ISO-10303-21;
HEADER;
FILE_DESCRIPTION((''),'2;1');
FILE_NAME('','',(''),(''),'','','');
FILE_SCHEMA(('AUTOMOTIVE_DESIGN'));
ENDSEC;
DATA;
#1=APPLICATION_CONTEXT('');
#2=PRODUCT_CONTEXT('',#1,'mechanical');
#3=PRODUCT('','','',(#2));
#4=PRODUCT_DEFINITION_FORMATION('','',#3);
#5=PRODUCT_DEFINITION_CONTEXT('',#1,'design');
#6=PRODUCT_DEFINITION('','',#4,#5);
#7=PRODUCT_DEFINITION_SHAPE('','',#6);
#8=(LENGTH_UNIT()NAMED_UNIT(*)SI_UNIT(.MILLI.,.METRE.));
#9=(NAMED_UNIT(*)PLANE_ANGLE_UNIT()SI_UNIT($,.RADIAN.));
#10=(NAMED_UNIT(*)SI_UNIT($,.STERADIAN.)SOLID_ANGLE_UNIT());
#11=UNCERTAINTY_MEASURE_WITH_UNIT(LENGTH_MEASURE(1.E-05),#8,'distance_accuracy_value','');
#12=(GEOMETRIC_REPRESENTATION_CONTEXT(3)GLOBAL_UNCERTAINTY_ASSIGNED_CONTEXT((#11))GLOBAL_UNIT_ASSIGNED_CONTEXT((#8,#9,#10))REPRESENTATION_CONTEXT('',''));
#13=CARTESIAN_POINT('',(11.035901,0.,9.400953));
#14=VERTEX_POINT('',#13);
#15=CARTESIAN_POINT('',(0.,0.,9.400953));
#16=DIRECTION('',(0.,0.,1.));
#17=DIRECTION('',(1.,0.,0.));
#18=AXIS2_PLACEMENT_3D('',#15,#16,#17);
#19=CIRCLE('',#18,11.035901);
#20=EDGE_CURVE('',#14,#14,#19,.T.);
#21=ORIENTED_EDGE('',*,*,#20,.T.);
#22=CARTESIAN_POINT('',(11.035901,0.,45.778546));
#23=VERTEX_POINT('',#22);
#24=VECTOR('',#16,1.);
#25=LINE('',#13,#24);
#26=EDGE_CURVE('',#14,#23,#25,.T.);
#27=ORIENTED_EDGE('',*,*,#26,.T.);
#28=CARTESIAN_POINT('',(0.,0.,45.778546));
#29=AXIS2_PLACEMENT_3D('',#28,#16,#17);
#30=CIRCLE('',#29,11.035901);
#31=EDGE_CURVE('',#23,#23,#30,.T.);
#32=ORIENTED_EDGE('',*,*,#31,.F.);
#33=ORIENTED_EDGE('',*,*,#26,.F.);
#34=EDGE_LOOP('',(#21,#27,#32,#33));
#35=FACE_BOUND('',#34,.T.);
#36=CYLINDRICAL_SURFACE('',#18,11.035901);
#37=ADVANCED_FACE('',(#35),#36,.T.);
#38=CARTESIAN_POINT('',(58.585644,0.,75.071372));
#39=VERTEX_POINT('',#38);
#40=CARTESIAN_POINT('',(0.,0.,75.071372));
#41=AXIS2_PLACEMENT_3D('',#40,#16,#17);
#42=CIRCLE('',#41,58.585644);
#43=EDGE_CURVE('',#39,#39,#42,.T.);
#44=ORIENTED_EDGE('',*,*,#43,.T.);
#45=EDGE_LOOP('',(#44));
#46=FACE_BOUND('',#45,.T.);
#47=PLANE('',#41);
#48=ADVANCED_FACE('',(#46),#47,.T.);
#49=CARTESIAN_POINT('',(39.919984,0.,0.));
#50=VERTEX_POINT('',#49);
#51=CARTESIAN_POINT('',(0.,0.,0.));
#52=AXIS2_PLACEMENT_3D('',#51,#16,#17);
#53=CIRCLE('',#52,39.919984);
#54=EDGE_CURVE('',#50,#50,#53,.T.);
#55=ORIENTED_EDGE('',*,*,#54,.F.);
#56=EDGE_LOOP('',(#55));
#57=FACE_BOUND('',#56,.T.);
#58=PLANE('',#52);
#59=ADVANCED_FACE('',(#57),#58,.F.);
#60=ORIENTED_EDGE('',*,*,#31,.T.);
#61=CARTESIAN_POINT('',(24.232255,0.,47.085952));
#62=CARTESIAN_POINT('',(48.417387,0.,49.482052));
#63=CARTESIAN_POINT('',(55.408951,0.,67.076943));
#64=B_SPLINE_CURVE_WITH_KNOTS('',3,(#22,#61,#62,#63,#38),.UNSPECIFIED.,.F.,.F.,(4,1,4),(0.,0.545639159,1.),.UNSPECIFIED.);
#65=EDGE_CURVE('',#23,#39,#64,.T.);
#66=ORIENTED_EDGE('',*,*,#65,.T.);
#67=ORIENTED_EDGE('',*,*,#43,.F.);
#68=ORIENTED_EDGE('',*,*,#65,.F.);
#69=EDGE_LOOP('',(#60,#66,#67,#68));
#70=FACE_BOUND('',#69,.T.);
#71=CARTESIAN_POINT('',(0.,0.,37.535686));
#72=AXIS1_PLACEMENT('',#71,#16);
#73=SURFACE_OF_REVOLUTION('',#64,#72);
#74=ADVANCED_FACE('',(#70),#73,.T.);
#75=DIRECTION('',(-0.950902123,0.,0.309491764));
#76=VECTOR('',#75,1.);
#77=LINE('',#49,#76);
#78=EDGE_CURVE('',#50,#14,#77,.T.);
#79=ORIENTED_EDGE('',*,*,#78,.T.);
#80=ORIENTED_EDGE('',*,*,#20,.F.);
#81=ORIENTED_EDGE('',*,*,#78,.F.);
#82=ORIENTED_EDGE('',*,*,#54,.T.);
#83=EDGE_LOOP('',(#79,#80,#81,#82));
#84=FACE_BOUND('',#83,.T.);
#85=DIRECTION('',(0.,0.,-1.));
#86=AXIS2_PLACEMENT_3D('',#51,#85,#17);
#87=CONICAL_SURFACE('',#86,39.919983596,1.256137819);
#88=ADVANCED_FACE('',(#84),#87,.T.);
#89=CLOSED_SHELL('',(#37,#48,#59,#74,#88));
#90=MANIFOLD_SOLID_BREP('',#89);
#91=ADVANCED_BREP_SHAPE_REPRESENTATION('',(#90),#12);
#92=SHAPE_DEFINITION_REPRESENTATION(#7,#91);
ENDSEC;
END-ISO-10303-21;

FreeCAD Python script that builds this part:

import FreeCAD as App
import Part
import Sketcher

V = App.Vector
Q = App.Units.Quantity

doc = App.newDocument("Part")
params = doc.addObject("Spreadsheet::Sheet", "Params")
for row, (alias, value) in enumerate([
    ("revolution_angle", "360 deg"),
], start=1):
    params.set(f"A{row}", alias)
    params.set(f"B{row}", "=" + value)
    params.setAlias(f"B{row}", alias)

body = doc.addObject("PartDesign::Body", "Body")

sketch1 = body.newObject("Sketcher::SketchObject", "Sketch")
sketch1.AttachmentSupport = (doc.getObject("XZ_Plane"), [""])
sketch1.MapMode = "FlatFace"
sketch1.addGeometry(Part.LineSegment(V(0, 75.071372, 0), V(0, 0, 0)), False)
sketch1.addGeometry(Part.LineSegment(V(0, 0, 0), V(39.919984, 0, 0)), False)
sketch1.addGeometry(Part.LineSegment(V(39.919984, 0, 0), V(11.035901, 9.400953, 0)), False)
sketch1.addGeometry(Part.LineSegment(V(11.035901, 9.400953, 0), V(11.035901, 45.778546, 0)), False)
sketch1.addGeometry(Part.BSplineCurve([V(11.035901, 45.778546, 0), V(24.232255, 47.085952, 0), V(48.417387, 49.482052, 0), V(55.408951, 67.076943, 0), V(58.585644, 75.071372, 0)], [4, 1, 4], [0, 0.545639159, 1], False, 3, [1, 1, 1, 1, 1], False), False)
sketch1.addGeometry(Part.LineSegment(V(58.585644, 75.071372, 0), V(0, 75.071372, 0)), False)
sketch1.addConstraint(Sketcher.Constraint("Block", 4))
sketch1.addConstraint(Sketcher.Constraint("Coincident", 0, 2, 1, 1))
sketch1.addConstraint(Sketcher.Constraint("Coincident", 1, 2, 2, 1))
sketch1.addConstraint(Sketcher.Constraint("Coincident", 2, 2, 3, 1))
sketch1.addConstraint(Sketcher.Constraint("Coincident", 3, 2, 4, 1))
sketch1.addConstraint(Sketcher.Constraint("Coincident", 4, 2, 5, 1))
sketch1.addConstraint(Sketcher.Constraint("Coincident", 5, 2, 0, 1))
sketch1.addConstraint(Sketcher.Constraint("Vertical", 0))
sketch1.addConstraint(Sketcher.Constraint("Horizontal", 1))
sketch1.addConstraint(Sketcher.Constraint("Vertical", 3))
sketch1.addConstraint(Sketcher.Constraint("Horizontal", 5))
sketch1.addConstraint(Sketcher.Constraint("Coincident", 0, 2, -1, 1))
sketch1.addConstraint(Sketcher.Constraint("DistanceX", 1, 1, 1, 2, Q("39.919984 mm")))
sketch1.addConstraint(Sketcher.Constraint("DistanceY", 3, 1, 3, 2, Q("36.377594 mm")))
revolution = body.newObject("PartDesign::Revolution", "Revolution")
revolution.Profile = sketch1
revolution.ReferenceAxis = (sketch1, ["V_Axis"])
revolution.setExpression("Angle", "Params.revolution_angle")

doc.recompute()
